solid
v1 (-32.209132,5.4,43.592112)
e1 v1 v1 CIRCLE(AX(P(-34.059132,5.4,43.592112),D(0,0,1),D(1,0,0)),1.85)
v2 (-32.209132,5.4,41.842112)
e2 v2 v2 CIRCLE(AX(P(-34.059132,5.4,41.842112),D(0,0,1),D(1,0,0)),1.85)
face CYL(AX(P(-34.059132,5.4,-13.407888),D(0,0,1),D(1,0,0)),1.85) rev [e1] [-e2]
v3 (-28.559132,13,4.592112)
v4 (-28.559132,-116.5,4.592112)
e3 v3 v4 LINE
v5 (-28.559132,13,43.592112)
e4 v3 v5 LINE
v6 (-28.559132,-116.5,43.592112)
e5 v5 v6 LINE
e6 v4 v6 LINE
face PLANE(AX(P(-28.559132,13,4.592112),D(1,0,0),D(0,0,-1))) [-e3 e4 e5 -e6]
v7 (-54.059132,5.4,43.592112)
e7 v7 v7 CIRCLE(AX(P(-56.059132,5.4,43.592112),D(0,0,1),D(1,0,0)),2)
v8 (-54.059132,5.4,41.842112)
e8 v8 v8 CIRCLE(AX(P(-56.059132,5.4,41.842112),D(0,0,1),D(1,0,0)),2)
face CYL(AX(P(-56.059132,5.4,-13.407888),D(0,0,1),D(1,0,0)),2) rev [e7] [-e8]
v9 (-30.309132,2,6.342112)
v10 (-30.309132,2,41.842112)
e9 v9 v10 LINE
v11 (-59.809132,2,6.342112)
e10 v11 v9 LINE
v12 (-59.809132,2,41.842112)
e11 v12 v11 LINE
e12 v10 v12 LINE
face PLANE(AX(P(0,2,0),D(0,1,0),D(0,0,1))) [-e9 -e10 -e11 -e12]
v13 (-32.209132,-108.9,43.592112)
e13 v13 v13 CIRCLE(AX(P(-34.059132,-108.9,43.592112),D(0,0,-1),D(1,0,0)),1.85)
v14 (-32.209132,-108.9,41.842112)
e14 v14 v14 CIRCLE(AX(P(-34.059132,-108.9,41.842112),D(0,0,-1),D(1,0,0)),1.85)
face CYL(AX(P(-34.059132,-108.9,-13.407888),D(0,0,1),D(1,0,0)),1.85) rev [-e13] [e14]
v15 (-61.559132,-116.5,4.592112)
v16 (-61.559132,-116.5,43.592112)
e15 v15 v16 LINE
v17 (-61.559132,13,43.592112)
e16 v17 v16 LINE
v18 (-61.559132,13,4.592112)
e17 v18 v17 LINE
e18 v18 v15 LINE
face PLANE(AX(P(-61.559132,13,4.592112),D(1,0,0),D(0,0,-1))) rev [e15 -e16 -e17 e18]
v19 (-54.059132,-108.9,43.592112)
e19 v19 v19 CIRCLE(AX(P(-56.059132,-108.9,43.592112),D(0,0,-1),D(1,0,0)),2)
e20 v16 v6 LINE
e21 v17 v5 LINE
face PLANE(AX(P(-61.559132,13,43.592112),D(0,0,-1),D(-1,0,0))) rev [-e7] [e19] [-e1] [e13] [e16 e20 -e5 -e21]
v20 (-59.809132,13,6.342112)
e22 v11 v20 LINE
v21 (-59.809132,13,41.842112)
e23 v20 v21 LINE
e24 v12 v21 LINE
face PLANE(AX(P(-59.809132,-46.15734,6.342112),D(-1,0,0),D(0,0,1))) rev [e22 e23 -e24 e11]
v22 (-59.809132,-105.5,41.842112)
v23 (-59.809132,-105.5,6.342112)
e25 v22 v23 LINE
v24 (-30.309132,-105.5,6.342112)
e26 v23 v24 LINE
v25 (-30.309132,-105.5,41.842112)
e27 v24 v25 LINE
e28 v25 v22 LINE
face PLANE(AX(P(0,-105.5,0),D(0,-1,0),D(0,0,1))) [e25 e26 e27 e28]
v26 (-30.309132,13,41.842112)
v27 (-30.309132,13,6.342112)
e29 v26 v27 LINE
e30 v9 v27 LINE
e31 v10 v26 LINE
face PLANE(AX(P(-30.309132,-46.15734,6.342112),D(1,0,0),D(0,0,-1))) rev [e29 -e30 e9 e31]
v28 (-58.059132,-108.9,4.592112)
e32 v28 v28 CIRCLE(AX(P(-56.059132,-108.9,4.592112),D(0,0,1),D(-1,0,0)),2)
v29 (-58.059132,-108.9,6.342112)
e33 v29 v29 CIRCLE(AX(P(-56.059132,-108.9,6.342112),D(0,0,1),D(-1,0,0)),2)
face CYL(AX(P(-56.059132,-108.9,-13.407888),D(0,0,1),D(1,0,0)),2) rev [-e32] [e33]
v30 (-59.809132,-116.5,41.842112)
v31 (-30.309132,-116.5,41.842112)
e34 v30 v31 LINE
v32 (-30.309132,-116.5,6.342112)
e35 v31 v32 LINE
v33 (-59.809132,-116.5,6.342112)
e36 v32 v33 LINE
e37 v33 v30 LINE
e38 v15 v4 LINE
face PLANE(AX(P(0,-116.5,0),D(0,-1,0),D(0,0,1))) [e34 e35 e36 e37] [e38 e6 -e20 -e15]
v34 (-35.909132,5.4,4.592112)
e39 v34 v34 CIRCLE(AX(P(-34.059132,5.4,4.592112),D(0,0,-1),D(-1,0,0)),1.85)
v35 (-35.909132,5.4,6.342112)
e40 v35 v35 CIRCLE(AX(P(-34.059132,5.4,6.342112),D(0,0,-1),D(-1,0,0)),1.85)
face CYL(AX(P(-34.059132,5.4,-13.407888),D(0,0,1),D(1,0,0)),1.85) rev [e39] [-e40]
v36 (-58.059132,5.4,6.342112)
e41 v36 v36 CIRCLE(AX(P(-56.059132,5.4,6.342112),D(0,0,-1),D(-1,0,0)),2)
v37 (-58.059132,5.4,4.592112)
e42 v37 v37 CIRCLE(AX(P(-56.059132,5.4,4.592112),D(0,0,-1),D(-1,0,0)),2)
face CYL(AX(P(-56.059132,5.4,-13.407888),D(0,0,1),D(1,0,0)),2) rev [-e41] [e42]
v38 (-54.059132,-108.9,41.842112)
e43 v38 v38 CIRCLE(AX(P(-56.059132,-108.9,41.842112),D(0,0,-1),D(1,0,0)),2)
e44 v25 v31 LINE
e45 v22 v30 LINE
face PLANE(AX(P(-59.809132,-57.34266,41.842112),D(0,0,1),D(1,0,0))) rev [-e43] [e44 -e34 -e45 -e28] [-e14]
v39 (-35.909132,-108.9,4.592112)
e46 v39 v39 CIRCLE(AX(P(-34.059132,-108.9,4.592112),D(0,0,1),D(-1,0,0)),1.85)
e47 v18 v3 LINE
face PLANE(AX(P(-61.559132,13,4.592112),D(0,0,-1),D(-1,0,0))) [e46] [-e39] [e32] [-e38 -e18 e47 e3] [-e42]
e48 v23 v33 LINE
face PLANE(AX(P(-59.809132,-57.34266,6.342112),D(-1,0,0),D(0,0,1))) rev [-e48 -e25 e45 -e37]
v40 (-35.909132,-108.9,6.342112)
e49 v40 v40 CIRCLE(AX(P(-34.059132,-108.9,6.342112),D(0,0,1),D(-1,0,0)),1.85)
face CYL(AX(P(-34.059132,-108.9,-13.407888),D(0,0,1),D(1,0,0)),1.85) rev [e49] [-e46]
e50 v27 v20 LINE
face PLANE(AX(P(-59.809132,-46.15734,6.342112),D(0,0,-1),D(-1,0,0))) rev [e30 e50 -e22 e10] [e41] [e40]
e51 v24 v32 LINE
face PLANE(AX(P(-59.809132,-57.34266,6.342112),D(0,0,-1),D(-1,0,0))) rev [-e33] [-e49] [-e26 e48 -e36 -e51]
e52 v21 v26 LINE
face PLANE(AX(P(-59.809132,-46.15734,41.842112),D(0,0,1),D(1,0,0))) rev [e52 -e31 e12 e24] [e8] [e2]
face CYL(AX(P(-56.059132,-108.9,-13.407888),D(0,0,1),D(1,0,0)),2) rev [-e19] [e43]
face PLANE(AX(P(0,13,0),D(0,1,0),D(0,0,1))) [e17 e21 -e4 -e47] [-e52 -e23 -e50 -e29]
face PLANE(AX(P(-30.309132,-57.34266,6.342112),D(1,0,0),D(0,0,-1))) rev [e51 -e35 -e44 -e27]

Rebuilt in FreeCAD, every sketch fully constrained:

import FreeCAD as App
import Part
import Sketcher


def add_polygon(sketch, points):
    """Adds a closed chain of lines whose ends are joined by coincident constraints."""
    first, n = sketch.GeometryCount, len(points)
    for a, b in zip(points, points[1:] + points[:1]):
        sketch.addGeometry(Part.LineSegment(App.Vector(*a, 0), App.Vector(*b, 0)), False)
    for i in range(n):
        sketch.addConstraint(Sketcher.Constraint("Coincident", first + i, 2, first + (i + 1) % n, 1))

doc = App.newDocument("Part")
params = doc.addObject("Spreadsheet::Sheet", "Params")
for row, (alias, value) in enumerate([
    ("sketch1_width", "33 mm"),
    ("sketch1_height", "39 mm"),
    ("pad1_length", "13 mm"),
    ("sketch2_width", "29.5 mm"),
    ("sketch2_height", "35.5 mm"),
    ("pocket1_length", "11 mm"),
    ("sketch3_diameter", "4 mm"),
    ("sketch3_diameter2", "3.7 mm"),
    ("pocket2_length", "57 mm"),
    ("sketch4_width", "33 mm"),
    ("sketch4_height", "39 mm"),
    ("pad2_length", "51.75 mm"),
], start=1):
    params.set(f"A{row}", alias)
    params.set(f"B{row}", "=" + value)
    params.setAlias(f"B{row}", alias)

body = doc.addObject("PartDesign::Body", "Body")

# Sketch on XZ plane
sketch1 = body.newObject("Sketcher::SketchObject", "Sketch")
sketch1.AttachmentSupport = (doc.getObject("XZ_Plane"), [""])
sketch1.MapMode = "FlatFace"
add_polygon(sketch1, [(-62, 5), (-62, 44), (-29, 44), (-29, 5)])  # lines 0-3
sketch1.addConstraint(Sketcher.Constraint("Vertical", 0))
sketch1.addConstraint(Sketcher.Constraint("Horizontal", 1))
sketch1.addConstraint(Sketcher.Constraint("Vertical", 2))
sketch1.addConstraint(Sketcher.Constraint("Horizontal", 3))
sketch1.addConstraint(Sketcher.Constraint("DistanceX", 1, 1, 1, 2, 33.0))
sketch1.addConstraint(Sketcher.Constraint("DistanceY", 0, 1, 0, 2, 39.0))
sketch1.addConstraint(Sketcher.Constraint("DistanceX", 0, 2, -1, 1, 61.559132))
sketch1.addConstraint(Sketcher.Constraint("DistanceY", -1, 1, 0, 2, 43.592112))
sketch1.setExpression("Constraints[8]", "Params.sketch1_width")
sketch1.setExpression("Constraints[9]", "Params.sketch1_height")
pad1 = body.newObject("PartDesign::Pad", "Pad")
pad1.Profile = sketch1
pad1.setExpression("Length", "Params.pad1_length")
pad1.Reversed = True

# Sketch on XZ plane
sketch2 = body.newObject("Sketcher::SketchObject", "Sketch001")
sketch2.AttachmentSupport = (doc.getObject("XZ_Plane"), [""])
sketch2.MapMode = "FlatFace"
sketch2.AttachmentOffset = App.Placement(App.Vector(0, 0, -13), App.Rotation())
add_polygon(sketch2, [(-60, 6), (-60, 42), (-30, 42), (-30, 6)])  # lines 0-3
sketch2.addConstraint(Sketcher.Constraint("Vertical", 0))
sketch2.addConstraint(Sketcher.Constraint("Horizontal", 1))
sketch2.addConstraint(Sketcher.Constraint("Vertical", 2))
sketch2.addConstraint(Sketcher.Constraint("Horizontal", 3))
sketch2.addConstraint(Sketcher.Constraint("DistanceX", 1, 1, 1, 2, 29.5))
sketch2.addConstraint(Sketcher.Constraint("DistanceY", 0, 1, 0, 2, 35.5))
sketch2.addConstraint(Sketcher.Constraint("DistanceX", 0, 2, -1, 1, 59.809132))
sketch2.addConstraint(Sketcher.Constraint("DistanceY", -1, 1, 0, 2, 41.842112))
sketch2.setExpression("Constraints[8]", "Params.sketch2_width")
sketch2.setExpression("Constraints[9]", "Params.sketch2_height")
pocket1 = body.newObject("PartDesign::Pocket", "Pocket")
pocket1.Profile = sketch2
pocket1.setExpression("Length", "Params.pocket1_length")
pocket1.Reversed = True

# Sketch on XY plane
sketch3 = body.newObject("Sketcher::SketchObject", "Sketch002")
sketch3.AttachmentSupport = (doc.getObject("XY_Plane"), [""])
sketch3.MapMode = "FlatFace"
sketch3.AttachmentOffset = App.Placement(App.Vector(0, 0, 43.592112), App.Rotation())
sketch3.addGeometry(Part.Circle(App.Vector(-34.1, 5.4, 0), App.Vector(0, 0, 1), 1.9), False)
sketch3.addGeometry(Part.Circle(App.Vector(-56.1, 5.4, 0), App.Vector(0, 0, 1), 2), False)
sketch3.addConstraint(Sketcher.Constraint("Horizontal", 0, 3, 1, 3))
sketch3.addConstraint(Sketcher.Constraint("Diameter", 1, 4.0))
sketch3.addConstraint(Sketcher.Constraint("Diameter", 0, 3.7))
sketch3.addConstraint(Sketcher.Constraint("DistanceX", 1, 3, 0, 3, 22.0))
sketch3.addConstraint(Sketcher.Constraint("DistanceY", -1, 1, 0, 3, 5.4))
sketch3.addConstraint(Sketcher.Constraint("DistanceX", 0, 3, -1, 1, 34.059132))
sketch3.setExpression("Constraints[1]", "Params.sketch3_diameter")
sketch3.setExpression("Constraints[2]", "Params.sketch3_diameter2")
pocket2 = body.newObject("PartDesign::Pocket", "Pocket001")
pocket2.Profile = sketch3
pocket2.setExpression("Length", "Params.pocket2_length")

# Sketch on XZ plane
sketch4 = body.newObject("Sketcher::SketchObject", "Sketch003")
sketch4.AttachmentSupport = (doc.getObject("XZ_Plane"), [""])
sketch4.MapMode = "FlatFace"
add_polygon(sketch4, [(-62, 44), (-62, 5), (-29, 5), (-29, 44)])  # lines 0-3
sketch4.addConstraint(Sketcher.Constraint("Vertical", 0))
sketch4.addConstraint(Sketcher.Constraint("Horizontal", 1))
sketch4.addConstraint(Sketcher.Constraint("Vertical", 2))
sketch4.addConstraint(Sketcher.Constraint("Horizontal", 3))
sketch4.addConstraint(Sketcher.Constraint("DistanceX", 1, 1, 1, 2, 33.0))
sketch4.addConstraint(Sketcher.Constraint("DistanceY", 0, 2, 0, 1, 39.0))
sketch4.addConstraint(Sketcher.Constraint("DistanceX", 0, 2, -1, 1, 61.559132))
sketch4.addConstraint(Sketcher.Constraint("DistanceY", -1, 1, 0, 2, 4.592112))
sketch4.setExpression("Constraints[8]", "Params.sketch4_width")
sketch4.setExpression("Constraints[9]", "Params.sketch4_height")
pad2 = body.newObject("PartDesign::Pad", "Pad001")
pad2.Profile = sketch4
pad2.setExpression("Length", "Params.pad2_length")
body2 = doc.addObject("PartDesign::Body", "Body001")
doc.recompute()

body2.BaseFeature = body
doc.recompute()

mirroring = doc.addObject("Part::Mirroring", "Mirroring")
mirroring.Source = body
mirroring.Base = App.Vector(0, -51.75, 0)
mirroring.Normal = App.Vector(0, 1, 0)
body3 = doc.addObject("PartDesign::Body", "Body002")
body3.BaseFeature = mirroring
boolean = body2.newObject("PartDesign::Boolean", "Boolean")
boolean.Type = "Fuse"
boolean.addObjects([body3])
doc.recompute()
mirroring.Visibility = False

doc.recompute()
